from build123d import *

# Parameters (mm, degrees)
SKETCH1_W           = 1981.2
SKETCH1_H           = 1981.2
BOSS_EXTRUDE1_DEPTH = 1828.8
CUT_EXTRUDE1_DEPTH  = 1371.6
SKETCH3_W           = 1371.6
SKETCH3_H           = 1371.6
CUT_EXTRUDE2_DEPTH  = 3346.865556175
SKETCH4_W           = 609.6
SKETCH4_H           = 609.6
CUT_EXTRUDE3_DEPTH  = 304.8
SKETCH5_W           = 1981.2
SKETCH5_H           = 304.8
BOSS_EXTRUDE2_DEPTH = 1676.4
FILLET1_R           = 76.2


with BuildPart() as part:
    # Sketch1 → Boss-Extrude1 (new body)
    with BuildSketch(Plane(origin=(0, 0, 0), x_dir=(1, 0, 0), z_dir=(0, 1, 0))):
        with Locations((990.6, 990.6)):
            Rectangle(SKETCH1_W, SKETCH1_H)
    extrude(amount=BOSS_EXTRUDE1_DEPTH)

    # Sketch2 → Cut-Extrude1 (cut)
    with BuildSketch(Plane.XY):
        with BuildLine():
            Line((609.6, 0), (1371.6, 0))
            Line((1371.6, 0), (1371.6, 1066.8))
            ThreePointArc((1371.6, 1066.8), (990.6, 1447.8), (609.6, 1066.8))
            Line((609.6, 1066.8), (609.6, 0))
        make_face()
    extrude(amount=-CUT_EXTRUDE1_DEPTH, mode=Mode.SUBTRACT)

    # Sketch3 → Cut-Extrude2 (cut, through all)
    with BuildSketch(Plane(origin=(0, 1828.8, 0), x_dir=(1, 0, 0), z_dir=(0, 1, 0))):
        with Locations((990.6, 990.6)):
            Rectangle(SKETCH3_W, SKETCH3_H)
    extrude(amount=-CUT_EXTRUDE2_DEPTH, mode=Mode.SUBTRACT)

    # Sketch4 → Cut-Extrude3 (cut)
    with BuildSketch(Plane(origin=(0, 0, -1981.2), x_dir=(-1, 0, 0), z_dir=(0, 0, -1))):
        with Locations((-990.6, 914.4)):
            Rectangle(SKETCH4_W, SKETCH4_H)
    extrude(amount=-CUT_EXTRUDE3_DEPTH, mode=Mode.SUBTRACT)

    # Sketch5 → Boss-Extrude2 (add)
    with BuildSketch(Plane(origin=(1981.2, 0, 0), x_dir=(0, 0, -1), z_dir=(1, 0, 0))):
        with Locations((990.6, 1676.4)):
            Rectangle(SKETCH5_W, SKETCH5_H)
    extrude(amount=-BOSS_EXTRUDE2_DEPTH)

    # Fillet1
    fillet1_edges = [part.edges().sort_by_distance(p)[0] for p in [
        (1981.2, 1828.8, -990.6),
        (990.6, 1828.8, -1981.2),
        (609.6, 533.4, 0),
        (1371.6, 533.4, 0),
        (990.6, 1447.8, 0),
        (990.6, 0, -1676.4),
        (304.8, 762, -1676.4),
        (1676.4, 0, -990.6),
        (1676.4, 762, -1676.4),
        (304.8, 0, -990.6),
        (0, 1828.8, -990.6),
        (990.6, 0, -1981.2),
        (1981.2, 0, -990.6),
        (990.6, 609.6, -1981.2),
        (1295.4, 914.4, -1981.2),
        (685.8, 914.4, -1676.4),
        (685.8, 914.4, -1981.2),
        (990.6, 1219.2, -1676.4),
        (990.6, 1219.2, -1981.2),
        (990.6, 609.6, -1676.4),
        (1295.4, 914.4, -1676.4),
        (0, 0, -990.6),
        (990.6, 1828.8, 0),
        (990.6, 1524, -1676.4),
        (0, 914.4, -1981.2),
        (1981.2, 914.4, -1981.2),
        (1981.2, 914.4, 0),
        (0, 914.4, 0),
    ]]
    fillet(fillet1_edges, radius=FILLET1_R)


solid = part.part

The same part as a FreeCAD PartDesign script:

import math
import FreeCAD as App
import Part
import Sketcher

V = App.Vector
Q = App.Units.Quantity


def edges_at(feature, points):
    """Names of the edges that pass closest to the given points."""
    edges = feature.Shape.Edges
    near = lambda p: min(range(len(edges)), key=lambda i: edges[i].distToShape(Part.Vertex(*p))[0])
    return sorted({f"Edge{near(p) + 1}" for p in points})

doc = App.newDocument("Part")
params = doc.addObject("Spreadsheet::Sheet", "Params")
for row, (alias, value) in enumerate([
    ("sketch1_width", "78 in"),
    ("pad1_length", "72 in"),
    ("sketch2_radius", "15 in"),
    ("sketch2_height", "42 in"),
    ("pocket1_length", "54 in"),
    ("sketch3_width", "54 in"),
    ("sketch4_width", "24 in"),
    ("pocket3_length", "12 in"),
    ("sketch5_width", "12 in"),
    ("sketch5_height", "78 in"),
    ("pad2_length", "66 in"),
    ("fillet_radius", "3 in"),
], start=1):
    params.set(f"A{row}", alias)
    params.set(f"B{row}", "=" + value)
    params.setAlias(f"B{row}", alias)

body = doc.addObject("PartDesign::Body", "Body")

# Sketch on XZ plane
sketch1 = body.newObject("Sketcher::SketchObject", "Sketch")
sketch1.AttachmentSupport = (doc.getObject("XZ_Plane"), [""])
sketch1.MapMode = "FlatFace"
sketch1.addGeometry(Part.LineSegment(V(0, -1981.2, 0), V(0, 0, 0)), False)
sketch1.addGeometry(Part.LineSegment(V(0, 0, 0), V(1981.2, 0, 0)), False)
sketch1.addGeometry(Part.LineSegment(V(1981.2, 0, 0), V(1981.2, -1981.2, 0)), False)
sketch1.addGeometry(Part.LineSegment(V(1981.2, -1981.2, 0), V(0, -1981.2, 0)), False)
sketch1.addConstraint(Sketcher.Constraint("Coincident", 0, 2, 1, 1))
sketch1.addConstraint(Sketcher.Constraint("Coincident", 1, 2, 2, 1))
sketch1.addConstraint(Sketcher.Constraint("Coincident", 2, 2, 3, 1))
sketch1.addConstraint(Sketcher.Constraint("Coincident", 3, 2, 0, 1))
sketch1.addConstraint(Sketcher.Constraint("Vertical", 0))
sketch1.addConstraint(Sketcher.Constraint("Horizontal", 1))
sketch1.addConstraint(Sketcher.Constraint("Vertical", 2))
sketch1.addConstraint(Sketcher.Constraint("Horizontal", 3))
sketch1.addConstraint(Sketcher.Constraint("Coincident", 0, 2, -1, 1))
sketch1.addConstraint(Sketcher.Constraint("Equal", 3, 0))
sketch1.addConstraint(Sketcher.Constraint("DistanceX", 1, 1, 1, 2, Q("78 in")))
sketch1.setExpression("Constraints[10]", "Params.sketch1_width")
pad1 = body.newObject("PartDesign::Pad", "Pad")
pad1.Profile = sketch1
pad1.setExpression("Length", "Params.pad1_length")
pad1.Reversed = True

# Sketch on XY plane
sketch2 = body.newObject("Sketcher::SketchObject", "Sketch001")
sketch2.AttachmentSupport = (doc.getObject("XY_Plane"), [""])
sketch2.MapMode = "FlatFace"
sketch2.addGeometry(Part.LineSegment(V(609.6, 0, 0), V(1371.6, 0, 0)), False)
sketch2.addGeometry(Part.LineSegment(V(1371.6, 0, 0), V(1371.6, 1066.8, 0)), False)
sketch2.addGeometry(Part.ArcOfCircle(Part.Circle(V(990.6, 1066.8, 0), V(0, 0, 1), 381), math.radians(0), math.radians(180)), False)
sketch2.addGeometry(Part.LineSegment(V(609.6, 1066.8, 0), V(609.6, 0, 0)), False)
sketch2.addConstraint(Sketcher.Constraint("Coincident", 0, 2, 1, 1))
sketch2.addConstraint(Sketcher.Constraint("Tangent", 1, 2, 2, 1))
sketch2.addConstraint(Sketcher.Constraint("Tangent", 2, 2, 3, 1))
sketch2.addConstraint(Sketcher.Constraint("Coincident", 3, 2, 0, 1))
sketch2.addConstraint(Sketcher.Constraint("Horizontal", 0))
sketch2.addConstraint(Sketcher.Constraint("Vertical", 1))
sketch2.addConstraint(Sketcher.Constraint("Vertical", 3))
sketch2.addConstraint(Sketcher.Constraint("PointOnObject", 0, 2, -1))
sketch2.addConstraint(Sketcher.Constraint("Radius", 2, Q("15 in")))
sketch2.addConstraint(Sketcher.Constraint("DistanceY", 1, 1, 1, 2, Q("42 in")))
sketch2.addConstraint(Sketcher.Constraint("DistanceX", -1, 1, 2, 3, Q("39 in")))
sketch2.setExpression("Constraints[8]", "Params.sketch2_radius")
sketch2.setExpression("Constraints[9]", "Params.sketch2_height")
pocket1 = body.newObject("PartDesign::Pocket", "Pocket")
pocket1.Profile = sketch2
pocket1.setExpression("Length", "Params.pocket1_length")

# Sketch on XZ plane
sketch3 = body.newObject("Sketcher::SketchObject", "Sketch002")
sketch3.AttachmentSupport = (doc.getObject("XZ_Plane"), [""])
sketch3.MapMode = "FlatFace"
sketch3.AttachmentOffset = App.Placement(V(0, 0, -72 * 25.4), App.Rotation())
sketch3.addGeometry(Part.LineSegment(V(304.8, -1676.4, 0), V(304.8, -304.8, 0)), False)
sketch3.addGeometry(Part.LineSegment(V(304.8, -304.8, 0), V(1676.4, -304.8, 0)), False)
sketch3.addGeometry(Part.LineSegment(V(1676.4, -304.8, 0), V(1676.4, -1676.4, 0)), False)
sketch3.addGeometry(Part.LineSegment(V(1676.4, -1676.4, 0), V(304.8, -1676.4, 0)), False)
sketch3.addConstraint(Sketcher.Constraint("Coincident", 0, 2, 1, 1))
sketch3.addConstraint(Sketcher.Constraint("Coincident", 1, 2, 2, 1))
sketch3.addConstraint(Sketcher.Constraint("Coincident", 2, 2, 3, 1))
sketch3.addConstraint(Sketcher.Constraint("Coincident", 3, 2, 0, 1))
sketch3.addConstraint(Sketcher.Constraint("Vertical", 0))
sketch3.addConstraint(Sketcher.Constraint("Horizontal", 1))
sketch3.addConstraint(Sketcher.Constraint("Vertical", 2))
sketch3.addConstraint(Sketcher.Constraint("Horizontal", 3))
sketch3.addConstraint(Sketcher.Constraint("Equal", 3, 0))
sketch3.addConstraint(Sketcher.Constraint("DistanceX", 1, 1, 1, 2, Q("54 in")))
sketch3.addConstraint(Sketcher.Constraint("DistanceX", -1, 1, 0, 2, Q("12 in")))
sketch3.addConstraint(Sketcher.Constraint("DistanceY", 0, 2, -1, 1, Q("12 in")))
sketch3.setExpression("Constraints[9]", "Params.sketch3_width")
pocket2 = body.newObject("PartDesign::Pocket", "Pocket001")
pocket2.Profile = sketch3
pocket2.Type = "ThroughAll"
pocket2.Reversed = True

# Sketch on XY plane
sketch4 = body.newObject("Sketcher::SketchObject", "Sketch003")
sketch4.AttachmentSupport = (doc.getObject("XY_Plane"), [""])
sketch4.MapMode = "FlatFace"
sketch4.AttachmentOffset = App.Placement(V(0, 0, -78 * 25.4), App.Rotation())
sketch4.addGeometry(Part.LineSegment(V(1295.4, 1219.2, 0), V(1295.4, 609.6, 0)), False)
sketch4.addGeometry(Part.LineSegment(V(1295.4, 609.6, 0), V(685.8, 609.6, 0)), False)
sketch4.addGeometry(Part.LineSegment(V(685.8, 609.6, 0), V(685.8, 1219.2, 0)), False)
sketch4.addGeometry(Part.LineSegment(V(685.8, 1219.2, 0), V(1295.4, 1219.2, 0)), False)
sketch4.addConstraint(Sketcher.Constraint("Coincident", 0, 2, 1, 1))
sketch4.addConstraint(Sketcher.Constraint("Coincident", 1, 2, 2, 1))
sketch4.addConstraint(Sketcher.Constraint("Coincident", 2, 2, 3, 1))
sketch4.addConstraint(Sketcher.Constraint("Coincident", 3, 2, 0, 1))
sketch4.addConstraint(Sketcher.Constraint("Vertical", 0))
sketch4.addConstraint(Sketcher.Constraint("Horizontal", 1))
sketch4.addConstraint(Sketcher.Constraint("Vertical", 2))
sketch4.addConstraint(Sketcher.Constraint("Horizontal", 3))
sketch4.addConstraint(Sketcher.Constraint("Equal", 3, 0))
sketch4.addConstraint(Sketcher.Constraint("DistanceX", 1, 2, 1, 1, Q("24 in")))
sketch4.addConstraint(Sketcher.Constraint("DistanceX", -1, 1, 0, 2, Q("51 in")))
sketch4.addConstraint(Sketcher.Constraint("DistanceY", -1, 1, 0, 2, Q("24 in")))
sketch4.setExpression("Constraints[9]", "Params.sketch4_width")
pocket3 = body.newObject("PartDesign::Pocket", "Pocket002")
pocket3.Profile = sketch4
pocket3.setExpression("Length", "Params.pocket3_length")
pocket3.Reversed = True

# Sketch on YZ plane
sketch5 = body.newObject("Sketcher::SketchObject", "Sketch004")
sketch5.AttachmentSupport = (doc.getObject("YZ_Plane"), [""])
sketch5.MapMode = "FlatFace"
sketch5.AttachmentOffset = App.Placement(V(0, 0, 78 * 25.4), App.Rotation())
sketch5.addGeometry(Part.LineSegment(V(1828.8, 0, 0), V(1524, 0, 0)), False)
sketch5.addGeometry(Part.LineSegment(V(1524, 0, 0), V(1524, -1981.2, 0)), False)
sketch5.addGeometry(Part.LineSegment(V(1524, -1981.2, 0), V(1828.8, -1981.2, 0)), False)
sketch5.addGeometry(Part.LineSegment(V(1828.8, -1981.2, 0), V(1828.8, 0, 0)), False)
sketch5.addConstraint(Sketcher.Constraint("Coincident", 0, 2, 1, 1))
sketch5.addConstraint(Sketcher.Constraint("Coincident", 1, 2, 2, 1))
sketch5.addConstraint(Sketcher.Constraint("Coincident", 2, 2, 3, 1))
sketch5.addConstraint(Sketcher.Constraint("Coincident", 3, 2, 0, 1))
sketch5.addConstraint(Sketcher.Constraint("Horizontal", 0))
sketch5.addConstraint(Sketcher.Constraint("Vertical", 1))
sketch5.addConstraint(Sketcher.Constraint("Horizontal", 2))
sketch5.addConstraint(Sketcher.Constraint("Vertical", 3))
sketch5.addConstraint(Sketcher.Constraint("PointOnObject", 0, 2, -1))
sketch5.addConstraint(Sketcher.Constraint("DistanceX", 0, 2, 0, 1, Q("12 in")))
sketch5.addConstraint(Sketcher.Constraint("DistanceY", 1, 2, 1, 1, Q("78 in")))
sketch5.addConstraint(Sketcher.Constraint("DistanceX", -1, 1, 0, 2, Q("60 in")))
sketch5.setExpression("Constraints[9]", "Params.sketch5_width")
sketch5.setExpression("Constraints[10]", "Params.sketch5_height")
pad2 = body.newObject("PartDesign::Pad", "Pad001")
pad2.Profile = sketch5
pad2.setExpression("Length", "Params.pad2_length")
pad2.Reversed = True
doc.recompute()

fillet = body.newObject("PartDesign::Fillet", "Fillet")
fillet.Base = (pad2, edges_at(pad2, [
    (1981.2, 1828.8, -990.6),
    (990.6, 1828.8, -1981.2),
    (609.6, 533.4, 0),
    (1371.6, 533.4, 0),
    (990.6, 1447.8, 0),
    (990.6, 0, -1676.4),
    (304.8, 762, -1676.4),
    (1676.4, 0, -990.6),
    (1676.4, 762, -1676.4),
    (304.8, 0, -990.6),
    (0, 1828.8, -990.6),
    (990.6, 0, -1981.2),
    (1981.2, 0, -990.6),
    (990.6, 609.6, -1981.2),
    (1295.4, 914.4, -1981.2),
    (685.8, 914.4, -1676.4),
    (685.8, 914.4, -1981.2),
    (990.6, 1219.2, -1676.4),
    (990.6, 1219.2, -1981.2),
    (990.6, 609.6, -1676.4),
    (1295.4, 914.4, -1676.4),
    (0, 0, -990.6),
    (990.6, 1828.8, 0),
    (990.6, 1524, -1676.4),
    (0, 914.4, -1981.2),
    (1981.2, 914.4, -1981.2),
    (1981.2, 914.4, 0),
    (0, 914.4, 0),
]))
fillet.setExpression("Radius", "Params.fillet_radius")

doc.recompute()
